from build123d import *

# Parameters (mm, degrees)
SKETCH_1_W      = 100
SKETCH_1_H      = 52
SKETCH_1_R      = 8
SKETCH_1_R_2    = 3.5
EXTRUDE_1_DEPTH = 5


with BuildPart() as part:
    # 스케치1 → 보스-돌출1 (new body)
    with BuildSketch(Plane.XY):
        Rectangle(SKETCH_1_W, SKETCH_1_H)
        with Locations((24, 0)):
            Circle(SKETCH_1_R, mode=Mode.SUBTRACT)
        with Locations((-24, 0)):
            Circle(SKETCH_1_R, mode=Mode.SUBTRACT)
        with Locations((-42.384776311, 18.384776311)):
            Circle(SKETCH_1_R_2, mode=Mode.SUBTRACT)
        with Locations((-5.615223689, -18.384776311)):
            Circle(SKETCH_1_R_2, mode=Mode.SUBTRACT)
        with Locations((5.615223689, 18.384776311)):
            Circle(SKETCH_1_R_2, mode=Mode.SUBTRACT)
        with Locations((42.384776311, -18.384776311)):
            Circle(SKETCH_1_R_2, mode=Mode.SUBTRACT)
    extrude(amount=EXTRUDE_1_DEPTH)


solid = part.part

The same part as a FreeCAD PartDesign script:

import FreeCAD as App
import Part
import Sketcher
Q = App.Units.Quantity

doc = App.newDocument("Part")
body = doc.addObject("PartDesign::Body", "Body")

sketch1 = body.newObject("Sketcher::SketchObject", "Sketch")
sketch1.AttachmentSupport = (doc.getObject("XY_Plane"), [""])
sketch1.MapMode = "FlatFace"
sketch1.addGeometry([
    Part.LineSegment(App.Vector(-50, 26, 0), App.Vector(-50, -26, 0)),
    Part.LineSegment(App.Vector(-50, -26, 0), App.Vector(50, -26, 0)),
    Part.LineSegment(App.Vector(50, -26, 0), App.Vector(50, 26, 0)),
    Part.LineSegment(App.Vector(50, 26, 0), App.Vector(-50, 26, 0)),
    Part.Circle(App.Vector(-5.615224, -18.384776, 0), App.Vector(0, 0, 1), 3.5),
    Part.Circle(App.Vector(42.384776, -18.384776, 0), App.Vector(0, 0, 1), 3.5),
    Part.Circle(App.Vector(-24, 0, 0), App.Vector(0, 0, 1), 8),
    Part.Circle(App.Vector(-42.384776, 18.384776, 0), App.Vector(0, 0, 1), 3.5),
    Part.Circle(App.Vector(24, 0, 0), App.Vector(0, 0, 1), 8),
    Part.Circle(App.Vector(5.615224, 18.384776, 0), App.Vector(0, 0, 1), 3.5),
], False)
sketch1.addConstraint([
    Sketcher.Constraint("Coincident", 0, 2, 1, 1),
    Sketcher.Constraint("Coincident", 1, 2, 2, 1),
    Sketcher.Constraint("Coincident", 2, 2, 3, 1),
    Sketcher.Constraint("Coincident", 3, 2, 0, 1),
    Sketcher.Constraint("Vertical", 0),
    Sketcher.Constraint("Horizontal", 1),
    Sketcher.Constraint("Vertical", 2),
    Sketcher.Constraint("Horizontal", 3),
    Sketcher.Constraint("Equal", 4, 5),
    Sketcher.Constraint("Equal", 5, 7),
    Sketcher.Constraint("Equal", 6, 8),
    Sketcher.Constraint("Equal", 7, 9),
    Sketcher.Constraint("Symmetric", 5, 3, 7, 3, -1, 1),
    Sketcher.Constraint("Symmetric", 6, 3, 8, 3, -1, 1),
    Sketcher.Constraint("Symmetric", 4, 3, 9, 3, -1, 1),
    Sketcher.Constraint("Symmetric", 0, 2, 2, 2, -1, 1),
    Sketcher.Constraint("PointOnObject", 6, 3, -1),
    Sketcher.Constraint("Horizontal", 4, 3, 5, 3),
    Sketcher.Constraint("Diameter", 4, Q("7 mm")),
    Sketcher.Constraint("Diameter", 6, Q("16 mm")),
    Sketcher.Constraint("DistanceX", 1, 1, 1, 2, Q("100 mm")),
    Sketcher.Constraint("DistanceY", 0, 2, 0, 1, Q("52 mm")),
    Sketcher.Constraint("DistanceX", 6, 3, -1, 1, Q("24 mm")),
    Sketcher.Constraint("DistanceX", 4, 3, 5, 3, Q("48 mm")),
    Sketcher.Constraint("DistanceX", 4, 3, -1, 1, Q("5.615224 mm")),
    Sketcher.Constraint("DistanceY", 4, 3, -1, 1, Q("18.384776 mm")),
])
pad1 = body.newObject("PartDesign::Pad", "Pad")
pad1.Profile = sketch1
pad1.Length = 5

doc.recompute()
